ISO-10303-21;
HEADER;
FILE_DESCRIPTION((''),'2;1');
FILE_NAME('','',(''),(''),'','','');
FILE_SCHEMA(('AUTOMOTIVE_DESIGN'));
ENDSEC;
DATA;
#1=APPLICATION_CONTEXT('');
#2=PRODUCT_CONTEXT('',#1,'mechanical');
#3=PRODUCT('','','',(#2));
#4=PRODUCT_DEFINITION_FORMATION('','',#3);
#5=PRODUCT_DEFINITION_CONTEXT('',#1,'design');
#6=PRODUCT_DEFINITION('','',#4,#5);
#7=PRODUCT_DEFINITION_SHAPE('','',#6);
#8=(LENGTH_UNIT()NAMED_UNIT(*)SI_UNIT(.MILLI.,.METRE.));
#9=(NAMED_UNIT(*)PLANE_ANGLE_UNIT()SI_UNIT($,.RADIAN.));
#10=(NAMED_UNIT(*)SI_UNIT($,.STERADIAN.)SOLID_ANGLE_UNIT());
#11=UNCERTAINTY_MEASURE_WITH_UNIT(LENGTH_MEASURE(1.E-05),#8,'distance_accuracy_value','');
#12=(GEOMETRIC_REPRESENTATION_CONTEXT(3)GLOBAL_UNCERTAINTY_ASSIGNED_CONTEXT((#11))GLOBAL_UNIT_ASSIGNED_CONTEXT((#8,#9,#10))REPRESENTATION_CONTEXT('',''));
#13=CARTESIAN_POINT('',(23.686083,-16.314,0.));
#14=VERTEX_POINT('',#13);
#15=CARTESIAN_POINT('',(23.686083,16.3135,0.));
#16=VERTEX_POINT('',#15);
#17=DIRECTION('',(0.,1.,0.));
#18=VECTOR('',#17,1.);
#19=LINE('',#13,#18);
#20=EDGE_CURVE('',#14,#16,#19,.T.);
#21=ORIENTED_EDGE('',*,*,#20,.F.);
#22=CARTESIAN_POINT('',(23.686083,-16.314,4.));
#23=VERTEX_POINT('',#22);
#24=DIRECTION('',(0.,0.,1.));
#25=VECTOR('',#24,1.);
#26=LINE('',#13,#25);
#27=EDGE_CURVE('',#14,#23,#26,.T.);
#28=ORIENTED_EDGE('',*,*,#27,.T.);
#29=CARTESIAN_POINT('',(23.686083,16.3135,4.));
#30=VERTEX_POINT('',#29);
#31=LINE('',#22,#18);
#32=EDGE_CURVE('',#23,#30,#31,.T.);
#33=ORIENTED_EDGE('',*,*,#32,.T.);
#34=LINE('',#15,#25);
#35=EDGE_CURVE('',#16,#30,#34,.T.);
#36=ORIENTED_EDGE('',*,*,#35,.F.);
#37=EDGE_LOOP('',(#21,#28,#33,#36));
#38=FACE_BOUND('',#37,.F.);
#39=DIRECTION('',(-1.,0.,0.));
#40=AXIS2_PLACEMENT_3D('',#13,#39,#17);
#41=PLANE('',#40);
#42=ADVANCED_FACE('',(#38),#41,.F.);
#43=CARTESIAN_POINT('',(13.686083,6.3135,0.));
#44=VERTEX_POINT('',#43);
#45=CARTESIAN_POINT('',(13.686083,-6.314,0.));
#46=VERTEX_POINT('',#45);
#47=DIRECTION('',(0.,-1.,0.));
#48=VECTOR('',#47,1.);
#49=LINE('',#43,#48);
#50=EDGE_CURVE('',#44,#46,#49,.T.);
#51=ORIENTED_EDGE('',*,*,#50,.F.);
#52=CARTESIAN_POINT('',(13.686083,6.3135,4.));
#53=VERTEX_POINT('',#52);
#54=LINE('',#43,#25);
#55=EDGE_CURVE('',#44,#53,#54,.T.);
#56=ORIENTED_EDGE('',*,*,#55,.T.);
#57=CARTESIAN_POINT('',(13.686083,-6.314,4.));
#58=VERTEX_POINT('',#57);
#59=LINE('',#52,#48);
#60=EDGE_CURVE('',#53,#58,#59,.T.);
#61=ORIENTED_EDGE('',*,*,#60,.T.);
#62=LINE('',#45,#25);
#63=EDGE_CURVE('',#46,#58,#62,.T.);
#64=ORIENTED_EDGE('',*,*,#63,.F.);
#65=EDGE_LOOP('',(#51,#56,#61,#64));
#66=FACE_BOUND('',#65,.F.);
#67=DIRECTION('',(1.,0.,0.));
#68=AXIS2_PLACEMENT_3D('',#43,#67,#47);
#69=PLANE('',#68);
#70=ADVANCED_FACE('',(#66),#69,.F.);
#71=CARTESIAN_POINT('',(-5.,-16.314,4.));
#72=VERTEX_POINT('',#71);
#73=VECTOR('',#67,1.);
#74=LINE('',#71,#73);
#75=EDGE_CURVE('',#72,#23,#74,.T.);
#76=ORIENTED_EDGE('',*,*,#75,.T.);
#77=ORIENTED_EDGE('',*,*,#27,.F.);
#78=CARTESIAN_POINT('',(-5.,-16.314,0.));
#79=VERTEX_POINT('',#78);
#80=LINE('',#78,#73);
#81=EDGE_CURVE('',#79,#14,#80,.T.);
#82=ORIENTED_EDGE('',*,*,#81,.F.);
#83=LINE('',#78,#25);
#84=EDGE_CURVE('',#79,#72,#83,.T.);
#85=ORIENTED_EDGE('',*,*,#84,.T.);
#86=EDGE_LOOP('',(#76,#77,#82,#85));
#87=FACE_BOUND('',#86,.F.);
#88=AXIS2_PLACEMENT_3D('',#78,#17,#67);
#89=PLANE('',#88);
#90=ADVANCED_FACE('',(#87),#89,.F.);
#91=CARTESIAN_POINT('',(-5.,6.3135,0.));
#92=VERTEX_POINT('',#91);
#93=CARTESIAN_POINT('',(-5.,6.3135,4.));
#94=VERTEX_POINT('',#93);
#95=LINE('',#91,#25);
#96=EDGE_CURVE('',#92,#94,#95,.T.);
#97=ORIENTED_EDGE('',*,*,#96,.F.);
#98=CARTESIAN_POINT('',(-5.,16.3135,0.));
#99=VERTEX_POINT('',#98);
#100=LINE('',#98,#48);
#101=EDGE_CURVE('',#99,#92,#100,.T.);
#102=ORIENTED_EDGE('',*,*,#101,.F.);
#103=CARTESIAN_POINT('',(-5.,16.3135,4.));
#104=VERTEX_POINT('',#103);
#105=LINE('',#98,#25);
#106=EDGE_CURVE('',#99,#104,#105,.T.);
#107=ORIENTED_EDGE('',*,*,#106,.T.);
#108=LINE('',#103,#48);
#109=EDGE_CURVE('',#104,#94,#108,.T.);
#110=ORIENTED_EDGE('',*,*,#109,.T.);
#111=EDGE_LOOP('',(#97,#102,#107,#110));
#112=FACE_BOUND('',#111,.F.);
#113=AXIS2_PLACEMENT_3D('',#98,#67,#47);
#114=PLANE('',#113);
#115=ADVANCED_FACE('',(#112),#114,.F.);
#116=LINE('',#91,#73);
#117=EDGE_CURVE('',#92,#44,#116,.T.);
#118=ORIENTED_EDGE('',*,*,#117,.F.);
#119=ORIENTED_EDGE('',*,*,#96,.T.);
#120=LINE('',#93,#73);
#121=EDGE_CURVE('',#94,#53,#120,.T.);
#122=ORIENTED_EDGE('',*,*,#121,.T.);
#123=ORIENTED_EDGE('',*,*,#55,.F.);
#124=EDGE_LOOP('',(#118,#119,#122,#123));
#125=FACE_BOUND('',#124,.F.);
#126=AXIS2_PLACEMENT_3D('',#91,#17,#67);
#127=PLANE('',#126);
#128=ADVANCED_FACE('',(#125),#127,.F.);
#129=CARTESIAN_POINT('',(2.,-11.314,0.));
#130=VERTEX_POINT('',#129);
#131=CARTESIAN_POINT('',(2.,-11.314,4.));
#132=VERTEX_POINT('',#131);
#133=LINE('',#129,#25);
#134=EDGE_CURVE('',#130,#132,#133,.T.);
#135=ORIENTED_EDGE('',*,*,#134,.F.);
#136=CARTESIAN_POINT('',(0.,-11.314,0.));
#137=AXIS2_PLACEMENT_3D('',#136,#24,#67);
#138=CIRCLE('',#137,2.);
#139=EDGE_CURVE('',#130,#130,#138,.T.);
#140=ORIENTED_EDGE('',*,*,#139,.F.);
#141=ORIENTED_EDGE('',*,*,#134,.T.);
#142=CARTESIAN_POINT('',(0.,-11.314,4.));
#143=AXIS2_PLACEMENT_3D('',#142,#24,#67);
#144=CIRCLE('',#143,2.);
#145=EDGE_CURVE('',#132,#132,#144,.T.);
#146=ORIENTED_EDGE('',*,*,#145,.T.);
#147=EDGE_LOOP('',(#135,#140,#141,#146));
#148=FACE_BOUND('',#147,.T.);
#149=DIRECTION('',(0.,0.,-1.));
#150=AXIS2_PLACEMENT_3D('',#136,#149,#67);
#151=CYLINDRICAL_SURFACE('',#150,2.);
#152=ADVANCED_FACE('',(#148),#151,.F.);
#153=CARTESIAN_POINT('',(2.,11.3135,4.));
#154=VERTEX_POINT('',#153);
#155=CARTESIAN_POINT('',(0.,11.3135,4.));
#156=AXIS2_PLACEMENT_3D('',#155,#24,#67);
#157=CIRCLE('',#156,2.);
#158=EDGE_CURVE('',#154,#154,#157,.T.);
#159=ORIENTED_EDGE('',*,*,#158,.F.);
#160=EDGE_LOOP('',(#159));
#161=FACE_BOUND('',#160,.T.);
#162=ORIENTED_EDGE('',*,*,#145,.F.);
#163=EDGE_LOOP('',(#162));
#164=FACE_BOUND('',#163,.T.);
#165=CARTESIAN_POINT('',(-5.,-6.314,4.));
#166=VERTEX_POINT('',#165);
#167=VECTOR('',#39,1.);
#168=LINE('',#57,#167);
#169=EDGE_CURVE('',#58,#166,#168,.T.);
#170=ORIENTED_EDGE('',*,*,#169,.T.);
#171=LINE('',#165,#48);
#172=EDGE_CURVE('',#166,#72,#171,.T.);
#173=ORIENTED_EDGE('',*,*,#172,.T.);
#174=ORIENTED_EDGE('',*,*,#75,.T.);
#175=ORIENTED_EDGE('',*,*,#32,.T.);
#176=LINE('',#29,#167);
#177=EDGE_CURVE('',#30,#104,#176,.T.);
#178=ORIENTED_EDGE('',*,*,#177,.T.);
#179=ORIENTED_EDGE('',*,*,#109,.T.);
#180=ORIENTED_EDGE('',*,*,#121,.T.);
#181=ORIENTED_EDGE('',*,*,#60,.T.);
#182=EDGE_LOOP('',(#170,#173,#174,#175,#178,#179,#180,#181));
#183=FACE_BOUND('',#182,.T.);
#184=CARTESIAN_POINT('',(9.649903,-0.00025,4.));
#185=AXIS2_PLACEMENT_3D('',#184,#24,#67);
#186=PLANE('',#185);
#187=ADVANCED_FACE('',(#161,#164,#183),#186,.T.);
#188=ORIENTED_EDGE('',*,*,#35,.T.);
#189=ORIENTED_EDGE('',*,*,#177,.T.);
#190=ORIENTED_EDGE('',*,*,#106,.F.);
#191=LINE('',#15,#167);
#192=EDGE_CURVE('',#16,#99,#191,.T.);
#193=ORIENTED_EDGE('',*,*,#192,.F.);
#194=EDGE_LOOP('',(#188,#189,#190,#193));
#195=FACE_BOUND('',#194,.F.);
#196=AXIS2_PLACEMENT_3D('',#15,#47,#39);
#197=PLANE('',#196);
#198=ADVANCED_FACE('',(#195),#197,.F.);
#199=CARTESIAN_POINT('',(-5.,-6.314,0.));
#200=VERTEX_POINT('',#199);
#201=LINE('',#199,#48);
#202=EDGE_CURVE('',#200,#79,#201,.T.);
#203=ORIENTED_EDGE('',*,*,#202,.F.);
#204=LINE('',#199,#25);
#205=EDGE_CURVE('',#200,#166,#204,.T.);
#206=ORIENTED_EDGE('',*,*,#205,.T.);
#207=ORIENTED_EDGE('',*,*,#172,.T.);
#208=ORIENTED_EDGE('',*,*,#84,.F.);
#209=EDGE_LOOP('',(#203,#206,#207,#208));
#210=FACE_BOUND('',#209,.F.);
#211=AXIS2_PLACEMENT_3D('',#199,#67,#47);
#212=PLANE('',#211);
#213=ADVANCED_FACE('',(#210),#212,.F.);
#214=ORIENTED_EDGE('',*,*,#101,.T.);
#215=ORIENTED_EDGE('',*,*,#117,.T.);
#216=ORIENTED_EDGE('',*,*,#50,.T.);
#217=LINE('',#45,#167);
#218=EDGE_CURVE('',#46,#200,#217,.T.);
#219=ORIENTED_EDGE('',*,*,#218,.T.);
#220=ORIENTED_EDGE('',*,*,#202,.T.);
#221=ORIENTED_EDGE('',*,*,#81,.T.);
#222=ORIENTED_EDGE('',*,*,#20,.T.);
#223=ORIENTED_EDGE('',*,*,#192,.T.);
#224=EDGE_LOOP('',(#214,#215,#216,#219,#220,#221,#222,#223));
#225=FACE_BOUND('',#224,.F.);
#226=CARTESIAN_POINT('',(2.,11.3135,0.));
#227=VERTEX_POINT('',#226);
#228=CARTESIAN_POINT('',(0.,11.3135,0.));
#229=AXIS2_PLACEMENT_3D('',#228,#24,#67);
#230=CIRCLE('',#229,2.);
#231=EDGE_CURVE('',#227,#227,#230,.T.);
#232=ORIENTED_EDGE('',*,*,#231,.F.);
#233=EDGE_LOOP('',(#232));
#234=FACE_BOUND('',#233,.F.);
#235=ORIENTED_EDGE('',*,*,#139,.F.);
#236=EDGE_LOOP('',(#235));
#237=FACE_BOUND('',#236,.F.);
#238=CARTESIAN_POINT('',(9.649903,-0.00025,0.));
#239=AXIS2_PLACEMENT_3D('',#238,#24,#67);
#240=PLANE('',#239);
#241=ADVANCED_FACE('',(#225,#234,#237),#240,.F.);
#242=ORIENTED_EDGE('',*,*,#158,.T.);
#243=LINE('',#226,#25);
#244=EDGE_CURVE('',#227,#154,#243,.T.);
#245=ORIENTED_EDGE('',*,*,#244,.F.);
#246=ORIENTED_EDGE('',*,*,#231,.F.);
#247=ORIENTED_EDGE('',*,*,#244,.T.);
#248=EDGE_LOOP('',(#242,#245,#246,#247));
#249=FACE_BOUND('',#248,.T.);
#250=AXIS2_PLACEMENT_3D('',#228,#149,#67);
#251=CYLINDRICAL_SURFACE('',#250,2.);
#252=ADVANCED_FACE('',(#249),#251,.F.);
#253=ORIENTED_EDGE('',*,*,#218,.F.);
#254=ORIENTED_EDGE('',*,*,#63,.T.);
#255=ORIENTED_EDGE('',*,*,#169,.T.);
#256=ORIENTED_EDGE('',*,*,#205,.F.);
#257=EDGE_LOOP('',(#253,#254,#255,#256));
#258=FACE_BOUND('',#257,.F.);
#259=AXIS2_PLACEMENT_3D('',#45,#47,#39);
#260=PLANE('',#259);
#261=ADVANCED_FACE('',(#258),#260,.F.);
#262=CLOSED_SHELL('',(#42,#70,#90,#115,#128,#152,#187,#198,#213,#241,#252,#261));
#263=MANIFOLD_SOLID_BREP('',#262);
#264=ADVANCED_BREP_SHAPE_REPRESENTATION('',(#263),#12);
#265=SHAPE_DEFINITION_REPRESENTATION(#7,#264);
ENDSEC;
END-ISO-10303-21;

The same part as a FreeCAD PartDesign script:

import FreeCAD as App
import Part
import Sketcher

V = App.Vector
Q = App.Units.Quantity


def add_polygon(sketch, points):
    """Adds a closed chain of lines whose ends are joined by coincident constraints."""
    first, n = sketch.GeometryCount, len(points)
    for a, b in zip(points, points[1:] + points[:1]):
        sketch.addGeometry(Part.LineSegment(App.Vector(*a, 0), App.Vector(*b, 0)), False)
    for i in range(n):
        sketch.addConstraint(Sketcher.Constraint("Coincident", first + i, 2, first + (i + 1) % n, 1))

doc = App.newDocument("Part")
body = doc.addObject("PartDesign::Body", "Body")

# Sketch on XY plane
sketch1 = body.newObject("Sketcher::SketchObject", "Sketch")
sketch1.AttachmentSupport = (doc.getObject("XY_Plane"), [""])
sketch1.MapMode = "FlatFace"
add_polygon(sketch1, [(23.7, 16.3), (-5, 16.3), (-5, 6.3), (13.7, 6.3), (13.7, -6.3), (-5, -6.3), (-5, -16.3), (23.7, -16.3)])  # lines 0-7
sketch1.addGeometry(Part.Circle(V(0, -11.3, 0), V(0, 0, 1), 2), False)  # 8
sketch1.addGeometry(Part.Circle(V(0, 11.3, 0), V(0, 0, 1), 2), False)  # 9
sketch1.addConstraint(Sketcher.Constraint("Horizontal", 0))
sketch1.addConstraint(Sketcher.Constraint("Vertical", 1))
sketch1.addConstraint(Sketcher.Constraint("Horizontal", 2))
sketch1.addConstraint(Sketcher.Constraint("Vertical", 3))
sketch1.addConstraint(Sketcher.Constraint("Horizontal", 4))
sketch1.addConstraint(Sketcher.Constraint("Vertical", 5))
sketch1.addConstraint(Sketcher.Constraint("Horizontal", 6))
sketch1.addConstraint(Sketcher.Constraint("Vertical", 7))
sketch1.addConstraint(Sketcher.Constraint("Equal", 8, 9))
sketch1.addConstraint(Sketcher.Constraint("PointOnObject", 8, 3, -2))
sketch1.addConstraint(Sketcher.Constraint("PointOnObject", 9, 3, -2))
sketch1.addConstraint(Sketcher.Constraint("Vertical", 1, 2, 4, 2))
sketch1.addConstraint(Sketcher.Constraint("Equal", 1, 5))
sketch1.addConstraint(Sketcher.Constraint("Diameter", 8, Q("4 mm")))
sketch1.addConstraint(Sketcher.Constraint("DistanceY", 1, 2, 1, 1, Q("10 mm")))
sketch1.addConstraint(Sketcher.Constraint("DistanceX", 0, 2, -1, 1, Q("5 mm")))
sketch1.addConstraint(Sketcher.Constraint("DistanceY", 9, 3, 0, 2, Q("5 mm")))
sketch1.addConstraint(Sketcher.Constraint("DistanceY", 8, 3, 3, 2, Q("5 mm")))
sketch1.addConstraint(Sketcher.Constraint("DistanceX", 3, 2, 6, 2, Q("10 mm")))
sketch1.addConstraint(Sketcher.Constraint("DistanceY", 3, 2, 3, 1, Q("12.6275 mm")))
sketch1.addConstraint(Sketcher.Constraint("DistanceY", 8, 3, -1, 1, Q("11.314 mm")))
sketch1.addConstraint(Sketcher.Constraint("DistanceX", 0, 2, 0, 1, Q("28.686083 mm")))
pad1 = body.newObject("PartDesign::Pad", "Pad")
pad1.Profile = sketch1
pad1.Length = 4

doc.recompute()
